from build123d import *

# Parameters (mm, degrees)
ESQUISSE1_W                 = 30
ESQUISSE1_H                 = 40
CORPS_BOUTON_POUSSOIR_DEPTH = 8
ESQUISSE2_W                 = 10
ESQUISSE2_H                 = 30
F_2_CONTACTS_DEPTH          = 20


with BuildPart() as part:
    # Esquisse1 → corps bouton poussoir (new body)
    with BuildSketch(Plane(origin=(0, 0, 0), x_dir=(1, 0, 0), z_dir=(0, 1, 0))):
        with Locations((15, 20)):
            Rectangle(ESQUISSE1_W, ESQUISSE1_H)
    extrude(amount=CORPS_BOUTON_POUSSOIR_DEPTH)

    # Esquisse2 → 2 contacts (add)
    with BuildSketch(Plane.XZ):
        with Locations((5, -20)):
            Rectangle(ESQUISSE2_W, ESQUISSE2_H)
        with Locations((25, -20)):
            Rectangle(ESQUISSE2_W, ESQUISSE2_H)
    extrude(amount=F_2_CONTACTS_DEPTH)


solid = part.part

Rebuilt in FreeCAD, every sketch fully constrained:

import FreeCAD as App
import Part
import Sketcher
Q = App.Units.Quantity


def add_polygon(sketch, points):
    """Adds a closed chain of lines whose ends are joined by coincident constraints."""
    first, n = sketch.GeometryCount, len(points)
    for a, b in zip(points, points[1:] + points[:1]):
        sketch.addGeometry(Part.LineSegment(App.Vector(*a, 0), App.Vector(*b, 0)), False)
    for i in range(n):
        sketch.addConstraint(Sketcher.Constraint("Coincident", first + i, 2, first + (i + 1) % n, 1))

doc = App.newDocument("Part")
body = doc.addObject("PartDesign::Body", "Body")

# Sketch on XZ plane
sketch1 = body.newObject("Sketcher::SketchObject", "Sketch")
sketch1.AttachmentSupport = (doc.getObject("XZ_Plane"), [""])
sketch1.MapMode = "FlatFace"
add_polygon(sketch1, [(0, -40), (0, 0), (30, 0), (30, -40)])  # lines 0-3
sketch1.addConstraint([
    Sketcher.Constraint("Vertical", 0),
    Sketcher.Constraint("Horizontal", 1),
    Sketcher.Constraint("Vertical", 2),
    Sketcher.Constraint("Horizontal", 3),
    Sketcher.Constraint("Coincident", 0, 2, -1, 1),
    Sketcher.Constraint("DistanceX", 1, 1, 1, 2, Q("30 mm")),
    Sketcher.Constraint("DistanceY", 0, 1, 0, 2, Q("40 mm")),
])
pad1 = body.newObject("PartDesign::Pad", "Pad")
pad1.Profile = sketch1
pad1.Length = 8
pad1.Reversed = True

# Sketch on XZ plane
sketch2 = body.newObject("Sketcher::SketchObject", "Sketch001")
sketch2.AttachmentSupport = (doc.getObject("XZ_Plane"), [""])
sketch2.MapMode = "FlatFace"
add_polygon(sketch2, [(0, -5), (0, -35), (10, -35), (10, -5)])  # lines 0-3
add_polygon(sketch2, [(20, -5), (20, -35), (30, -35), (30, -5)])  # lines 4-7
sketch2.addConstraint([
    Sketcher.Constraint("Vertical", 0),
    Sketcher.Constraint("Horizontal", 1),
    Sketcher.Constraint("Vertical", 2),
    Sketcher.Constraint("Horizontal", 3),
    Sketcher.Constraint("Vertical", 4),
    Sketcher.Constraint("Horizontal", 5),
    Sketcher.Constraint("Vertical", 6),
    Sketcher.Constraint("Horizontal", 7),
    Sketcher.Constraint("PointOnObject", 0, 2, -2),
    Sketcher.Constraint("Horizontal", 1, 2, 4, 2),
    Sketcher.Constraint("Horizontal", 3, 2, 6, 2),
    Sketcher.Constraint("Equal", 3, 5),
    Sketcher.Constraint("DistanceX", 1, 1, 1, 2, Q("10 mm")),
    Sketcher.Constraint("DistanceY", 0, 2, 0, 1, Q("30 mm")),
    Sketcher.Constraint("DistanceY", 0, 2, -1, 1, Q("35 mm")),
    Sketcher.Constraint("DistanceX", -1, 1, 4, 2, Q("20 mm")),
])
pad2 = body.newObject("PartDesign::Pad", "Pad001")
pad2.Profile = sketch2
pad2.Length = 20

doc.recompute()
